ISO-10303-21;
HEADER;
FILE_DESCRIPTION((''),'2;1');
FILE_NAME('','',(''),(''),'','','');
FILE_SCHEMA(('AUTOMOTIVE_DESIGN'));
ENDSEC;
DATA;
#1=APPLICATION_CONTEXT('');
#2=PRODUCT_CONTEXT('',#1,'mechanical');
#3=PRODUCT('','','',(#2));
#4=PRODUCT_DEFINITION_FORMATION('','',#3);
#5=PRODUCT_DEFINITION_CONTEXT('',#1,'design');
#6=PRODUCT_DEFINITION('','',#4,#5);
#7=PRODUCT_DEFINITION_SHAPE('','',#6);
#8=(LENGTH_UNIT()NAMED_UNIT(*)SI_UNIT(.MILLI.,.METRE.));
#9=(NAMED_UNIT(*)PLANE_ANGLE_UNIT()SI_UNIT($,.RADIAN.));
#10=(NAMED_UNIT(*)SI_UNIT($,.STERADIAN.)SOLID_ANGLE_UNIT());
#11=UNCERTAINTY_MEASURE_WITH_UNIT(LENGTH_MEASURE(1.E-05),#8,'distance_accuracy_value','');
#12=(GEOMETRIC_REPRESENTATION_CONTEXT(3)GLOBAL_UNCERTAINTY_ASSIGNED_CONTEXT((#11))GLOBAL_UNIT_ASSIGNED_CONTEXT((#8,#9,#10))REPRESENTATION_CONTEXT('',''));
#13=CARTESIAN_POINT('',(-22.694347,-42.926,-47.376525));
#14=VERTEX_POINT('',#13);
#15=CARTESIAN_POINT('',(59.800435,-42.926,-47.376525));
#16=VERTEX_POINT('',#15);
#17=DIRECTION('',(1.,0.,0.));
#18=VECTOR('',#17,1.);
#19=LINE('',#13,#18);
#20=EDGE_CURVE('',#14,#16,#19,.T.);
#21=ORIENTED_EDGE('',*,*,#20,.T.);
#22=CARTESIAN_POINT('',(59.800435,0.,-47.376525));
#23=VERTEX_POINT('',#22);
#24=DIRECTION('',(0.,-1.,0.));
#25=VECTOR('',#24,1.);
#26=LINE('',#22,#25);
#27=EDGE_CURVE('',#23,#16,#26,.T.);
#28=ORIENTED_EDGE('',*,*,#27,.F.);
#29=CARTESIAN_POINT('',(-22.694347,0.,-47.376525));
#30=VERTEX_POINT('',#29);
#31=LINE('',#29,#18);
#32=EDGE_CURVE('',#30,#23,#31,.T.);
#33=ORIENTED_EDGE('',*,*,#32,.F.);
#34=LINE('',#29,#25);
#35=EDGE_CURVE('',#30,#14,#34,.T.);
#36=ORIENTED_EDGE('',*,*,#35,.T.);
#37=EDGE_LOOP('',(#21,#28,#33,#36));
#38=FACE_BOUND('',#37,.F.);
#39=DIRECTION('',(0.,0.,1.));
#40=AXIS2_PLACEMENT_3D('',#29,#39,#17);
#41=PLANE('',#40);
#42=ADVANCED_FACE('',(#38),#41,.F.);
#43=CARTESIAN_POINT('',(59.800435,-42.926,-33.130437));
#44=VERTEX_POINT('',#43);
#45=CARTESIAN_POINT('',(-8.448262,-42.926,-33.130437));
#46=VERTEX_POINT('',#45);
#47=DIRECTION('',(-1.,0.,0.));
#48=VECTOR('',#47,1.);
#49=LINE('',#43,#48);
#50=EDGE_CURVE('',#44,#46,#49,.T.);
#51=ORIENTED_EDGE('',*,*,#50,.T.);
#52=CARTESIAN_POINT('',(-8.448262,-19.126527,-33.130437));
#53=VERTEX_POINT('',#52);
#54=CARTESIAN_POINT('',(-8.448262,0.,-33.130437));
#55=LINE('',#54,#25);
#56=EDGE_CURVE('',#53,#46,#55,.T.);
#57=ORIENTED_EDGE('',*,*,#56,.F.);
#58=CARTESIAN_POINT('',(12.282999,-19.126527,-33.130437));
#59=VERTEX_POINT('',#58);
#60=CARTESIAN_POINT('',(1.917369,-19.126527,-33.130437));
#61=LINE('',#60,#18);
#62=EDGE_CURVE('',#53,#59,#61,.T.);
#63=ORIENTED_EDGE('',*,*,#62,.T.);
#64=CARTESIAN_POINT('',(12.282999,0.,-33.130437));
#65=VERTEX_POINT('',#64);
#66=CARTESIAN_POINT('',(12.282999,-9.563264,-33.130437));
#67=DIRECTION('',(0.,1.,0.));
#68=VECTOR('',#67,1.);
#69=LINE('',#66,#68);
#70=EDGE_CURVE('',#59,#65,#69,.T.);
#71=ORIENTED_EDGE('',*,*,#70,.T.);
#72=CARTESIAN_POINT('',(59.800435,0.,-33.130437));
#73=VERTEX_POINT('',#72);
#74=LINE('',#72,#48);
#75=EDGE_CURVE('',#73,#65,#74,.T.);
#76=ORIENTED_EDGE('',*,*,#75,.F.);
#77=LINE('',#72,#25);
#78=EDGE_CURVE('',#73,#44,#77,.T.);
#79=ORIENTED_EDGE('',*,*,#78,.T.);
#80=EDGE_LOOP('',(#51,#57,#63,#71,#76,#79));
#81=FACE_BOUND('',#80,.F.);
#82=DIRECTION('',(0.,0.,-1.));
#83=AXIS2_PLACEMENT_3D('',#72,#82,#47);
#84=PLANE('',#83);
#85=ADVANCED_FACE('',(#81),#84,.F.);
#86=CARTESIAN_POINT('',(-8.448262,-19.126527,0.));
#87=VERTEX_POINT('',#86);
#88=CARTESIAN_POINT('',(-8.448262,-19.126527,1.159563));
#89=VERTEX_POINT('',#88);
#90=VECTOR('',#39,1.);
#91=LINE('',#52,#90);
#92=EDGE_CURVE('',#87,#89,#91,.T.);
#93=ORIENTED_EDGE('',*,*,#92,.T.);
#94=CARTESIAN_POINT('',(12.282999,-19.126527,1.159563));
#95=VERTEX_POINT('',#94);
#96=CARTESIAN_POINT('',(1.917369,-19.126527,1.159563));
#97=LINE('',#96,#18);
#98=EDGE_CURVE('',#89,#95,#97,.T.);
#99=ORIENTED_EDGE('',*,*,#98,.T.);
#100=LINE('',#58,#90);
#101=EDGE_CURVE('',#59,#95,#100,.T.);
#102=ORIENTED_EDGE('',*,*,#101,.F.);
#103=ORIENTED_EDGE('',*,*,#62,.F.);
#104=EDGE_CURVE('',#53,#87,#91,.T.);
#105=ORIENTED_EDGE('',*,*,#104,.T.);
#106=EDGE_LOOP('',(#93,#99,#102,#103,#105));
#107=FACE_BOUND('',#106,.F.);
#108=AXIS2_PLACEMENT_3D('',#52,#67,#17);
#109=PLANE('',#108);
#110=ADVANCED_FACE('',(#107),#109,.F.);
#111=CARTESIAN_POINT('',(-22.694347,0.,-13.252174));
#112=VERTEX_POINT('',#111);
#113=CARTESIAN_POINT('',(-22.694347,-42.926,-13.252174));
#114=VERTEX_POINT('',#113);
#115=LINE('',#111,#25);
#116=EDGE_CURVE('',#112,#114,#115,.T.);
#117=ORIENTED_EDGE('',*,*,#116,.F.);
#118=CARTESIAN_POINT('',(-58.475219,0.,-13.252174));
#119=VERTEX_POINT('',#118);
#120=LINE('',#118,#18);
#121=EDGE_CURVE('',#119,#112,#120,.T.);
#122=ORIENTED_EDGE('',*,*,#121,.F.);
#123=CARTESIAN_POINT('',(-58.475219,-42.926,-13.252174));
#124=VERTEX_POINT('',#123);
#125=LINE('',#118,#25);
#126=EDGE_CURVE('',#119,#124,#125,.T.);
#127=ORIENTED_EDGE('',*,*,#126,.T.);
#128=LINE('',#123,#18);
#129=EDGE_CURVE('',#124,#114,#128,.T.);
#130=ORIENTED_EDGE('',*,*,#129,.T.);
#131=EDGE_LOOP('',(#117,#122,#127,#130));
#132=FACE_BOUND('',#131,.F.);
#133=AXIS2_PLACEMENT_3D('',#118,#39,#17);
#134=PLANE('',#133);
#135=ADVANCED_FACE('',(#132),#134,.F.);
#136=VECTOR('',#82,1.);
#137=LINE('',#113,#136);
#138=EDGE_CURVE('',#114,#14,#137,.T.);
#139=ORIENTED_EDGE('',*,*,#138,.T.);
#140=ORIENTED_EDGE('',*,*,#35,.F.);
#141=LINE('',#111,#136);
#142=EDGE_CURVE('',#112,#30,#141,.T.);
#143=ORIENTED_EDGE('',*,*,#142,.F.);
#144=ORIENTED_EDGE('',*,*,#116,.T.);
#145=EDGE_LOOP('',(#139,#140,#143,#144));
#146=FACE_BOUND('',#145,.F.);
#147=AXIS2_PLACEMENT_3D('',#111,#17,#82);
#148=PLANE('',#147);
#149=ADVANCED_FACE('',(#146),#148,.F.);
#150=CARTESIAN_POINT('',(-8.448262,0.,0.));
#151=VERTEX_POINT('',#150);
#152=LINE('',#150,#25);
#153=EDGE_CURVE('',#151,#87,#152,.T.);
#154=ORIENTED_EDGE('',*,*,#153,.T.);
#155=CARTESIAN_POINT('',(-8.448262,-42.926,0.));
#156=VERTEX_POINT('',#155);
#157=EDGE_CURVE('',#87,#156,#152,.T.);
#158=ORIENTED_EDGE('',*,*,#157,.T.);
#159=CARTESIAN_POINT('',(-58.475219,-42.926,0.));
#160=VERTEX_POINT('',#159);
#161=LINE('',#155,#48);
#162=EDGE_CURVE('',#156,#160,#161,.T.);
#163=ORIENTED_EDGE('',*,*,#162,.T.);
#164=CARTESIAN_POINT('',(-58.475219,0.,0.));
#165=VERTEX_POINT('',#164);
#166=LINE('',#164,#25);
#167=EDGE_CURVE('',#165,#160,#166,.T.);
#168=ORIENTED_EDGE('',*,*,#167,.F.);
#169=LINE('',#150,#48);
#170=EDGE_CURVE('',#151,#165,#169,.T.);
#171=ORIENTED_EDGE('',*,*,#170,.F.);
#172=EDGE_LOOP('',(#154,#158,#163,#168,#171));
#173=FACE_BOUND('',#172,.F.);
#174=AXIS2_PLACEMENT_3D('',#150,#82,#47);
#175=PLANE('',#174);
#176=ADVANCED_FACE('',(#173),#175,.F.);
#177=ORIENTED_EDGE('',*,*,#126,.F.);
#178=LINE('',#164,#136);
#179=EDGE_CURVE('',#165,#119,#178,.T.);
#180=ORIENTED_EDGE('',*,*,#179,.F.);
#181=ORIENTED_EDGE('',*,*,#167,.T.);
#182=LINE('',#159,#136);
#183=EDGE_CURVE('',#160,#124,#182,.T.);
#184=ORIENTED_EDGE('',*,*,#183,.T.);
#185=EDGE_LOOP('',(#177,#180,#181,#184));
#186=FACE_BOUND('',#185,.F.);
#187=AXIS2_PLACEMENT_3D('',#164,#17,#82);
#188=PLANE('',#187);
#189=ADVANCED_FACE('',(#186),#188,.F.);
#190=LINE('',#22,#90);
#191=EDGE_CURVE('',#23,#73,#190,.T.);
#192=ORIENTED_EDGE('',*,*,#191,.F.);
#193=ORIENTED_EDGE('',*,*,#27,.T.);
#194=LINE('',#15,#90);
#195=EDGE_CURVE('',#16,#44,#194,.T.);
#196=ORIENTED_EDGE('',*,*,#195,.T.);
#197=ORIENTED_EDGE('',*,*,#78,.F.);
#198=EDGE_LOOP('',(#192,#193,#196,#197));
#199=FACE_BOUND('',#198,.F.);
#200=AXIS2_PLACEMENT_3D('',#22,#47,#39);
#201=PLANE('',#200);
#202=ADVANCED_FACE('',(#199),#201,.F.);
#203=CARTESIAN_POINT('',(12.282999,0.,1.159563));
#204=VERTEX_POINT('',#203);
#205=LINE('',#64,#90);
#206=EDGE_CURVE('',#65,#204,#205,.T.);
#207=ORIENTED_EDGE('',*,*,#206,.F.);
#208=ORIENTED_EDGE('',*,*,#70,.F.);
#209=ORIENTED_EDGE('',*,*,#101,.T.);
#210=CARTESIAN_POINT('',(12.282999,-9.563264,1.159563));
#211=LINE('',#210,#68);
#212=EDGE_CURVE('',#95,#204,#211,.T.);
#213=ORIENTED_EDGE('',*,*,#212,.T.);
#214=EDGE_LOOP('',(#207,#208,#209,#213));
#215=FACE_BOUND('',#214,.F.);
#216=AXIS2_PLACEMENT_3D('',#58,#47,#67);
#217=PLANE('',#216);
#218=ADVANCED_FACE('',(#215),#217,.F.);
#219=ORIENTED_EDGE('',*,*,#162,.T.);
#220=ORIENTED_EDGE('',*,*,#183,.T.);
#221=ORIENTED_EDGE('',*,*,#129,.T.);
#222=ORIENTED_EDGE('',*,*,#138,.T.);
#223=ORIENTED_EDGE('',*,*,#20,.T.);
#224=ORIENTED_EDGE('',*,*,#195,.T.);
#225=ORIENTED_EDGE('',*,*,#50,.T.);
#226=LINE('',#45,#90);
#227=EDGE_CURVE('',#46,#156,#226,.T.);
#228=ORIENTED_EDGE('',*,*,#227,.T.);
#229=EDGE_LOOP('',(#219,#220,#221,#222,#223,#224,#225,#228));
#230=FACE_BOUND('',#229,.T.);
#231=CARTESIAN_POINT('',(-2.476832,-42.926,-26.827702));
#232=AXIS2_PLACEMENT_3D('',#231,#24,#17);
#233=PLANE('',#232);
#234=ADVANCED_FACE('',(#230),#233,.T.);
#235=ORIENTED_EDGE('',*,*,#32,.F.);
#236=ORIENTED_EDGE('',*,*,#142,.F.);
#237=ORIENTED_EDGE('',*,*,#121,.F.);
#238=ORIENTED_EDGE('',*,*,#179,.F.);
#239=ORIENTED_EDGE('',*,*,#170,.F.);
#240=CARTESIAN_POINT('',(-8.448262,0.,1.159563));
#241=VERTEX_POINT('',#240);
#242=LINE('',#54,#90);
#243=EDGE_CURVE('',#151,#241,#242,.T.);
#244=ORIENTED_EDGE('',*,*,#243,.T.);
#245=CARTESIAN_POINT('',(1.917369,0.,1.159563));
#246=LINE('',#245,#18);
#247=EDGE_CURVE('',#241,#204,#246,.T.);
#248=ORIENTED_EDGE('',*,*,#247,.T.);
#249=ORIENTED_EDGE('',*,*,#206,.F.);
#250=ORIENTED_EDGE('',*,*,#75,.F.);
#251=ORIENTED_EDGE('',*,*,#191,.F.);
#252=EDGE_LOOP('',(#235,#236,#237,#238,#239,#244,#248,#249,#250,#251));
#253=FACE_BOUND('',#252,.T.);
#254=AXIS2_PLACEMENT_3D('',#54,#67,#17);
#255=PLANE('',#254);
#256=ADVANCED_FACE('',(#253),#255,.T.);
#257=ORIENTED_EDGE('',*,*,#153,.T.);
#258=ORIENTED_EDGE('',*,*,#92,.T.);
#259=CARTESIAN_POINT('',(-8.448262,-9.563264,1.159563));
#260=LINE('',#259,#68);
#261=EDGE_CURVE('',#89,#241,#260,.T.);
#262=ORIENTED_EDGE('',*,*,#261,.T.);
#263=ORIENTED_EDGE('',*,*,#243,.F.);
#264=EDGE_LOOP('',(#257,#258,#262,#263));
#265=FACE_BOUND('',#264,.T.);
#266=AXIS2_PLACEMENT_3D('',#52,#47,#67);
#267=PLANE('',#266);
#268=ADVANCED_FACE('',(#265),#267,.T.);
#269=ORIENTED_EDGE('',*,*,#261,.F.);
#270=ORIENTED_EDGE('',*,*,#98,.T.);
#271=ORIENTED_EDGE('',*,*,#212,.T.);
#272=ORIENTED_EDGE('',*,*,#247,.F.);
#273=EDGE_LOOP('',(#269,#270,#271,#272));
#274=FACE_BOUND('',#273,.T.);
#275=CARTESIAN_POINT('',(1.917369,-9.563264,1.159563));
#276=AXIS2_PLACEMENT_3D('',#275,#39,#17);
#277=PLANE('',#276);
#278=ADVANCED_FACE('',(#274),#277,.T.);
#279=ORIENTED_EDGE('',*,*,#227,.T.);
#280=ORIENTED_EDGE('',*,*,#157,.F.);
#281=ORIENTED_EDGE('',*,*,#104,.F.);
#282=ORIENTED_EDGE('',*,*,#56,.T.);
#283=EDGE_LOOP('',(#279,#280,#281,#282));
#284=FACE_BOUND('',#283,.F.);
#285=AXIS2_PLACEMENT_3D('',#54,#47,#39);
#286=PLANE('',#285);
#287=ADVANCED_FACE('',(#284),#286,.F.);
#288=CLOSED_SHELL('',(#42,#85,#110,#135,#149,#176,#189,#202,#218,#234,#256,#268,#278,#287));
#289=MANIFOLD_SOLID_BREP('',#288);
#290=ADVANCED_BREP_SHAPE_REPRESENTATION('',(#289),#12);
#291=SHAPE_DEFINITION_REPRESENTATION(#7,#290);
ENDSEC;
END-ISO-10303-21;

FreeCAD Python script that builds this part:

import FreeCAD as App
import Part
import Sketcher

V = App.Vector

doc = App.newDocument("Part")
params = doc.addObject("Spreadsheet::Sheet", "Params")
for row, (alias, value) in enumerate([
    ("pad1_length", "1.69 in"),
    ("pad2_length", "1.35 in"),
], start=1):
    params.set(f"A{row}", alias)
    params.set(f"B{row}", "=" + value)
    params.setAlias(f"B{row}", alias)

body = doc.addObject("PartDesign::Body", "Body")

sketch1 = doc.addObject("Sketcher::SketchObject", "Sketch")
body.addObject(sketch1)
sketch1.AttachmentSupport = (doc.XZ_Plane, [""])
sketch1.MapMode = "FlatFace"
sketch1.addGeometry([
    Part.LineSegment(V(-22.694347, -47.376525, 0), V(59.800435, -47.376525, 0)),
    Part.LineSegment(V(59.800435, -47.376525, 0), V(59.800435, -33.130437, 0)),
    Part.LineSegment(V(59.800435, -33.130437, 0), V(-8.448262, -33.130437, 0)),
    Part.LineSegment(V(-8.448262, -33.130437, 0), V(-8.448262, 0, 0)),
    Part.LineSegment(V(-8.448262, 0, 0), V(-58.475219, 0, 0)),
    Part.LineSegment(V(-58.475219, 0, 0), V(-58.475219, -13.252174, 0)),
    Part.LineSegment(V(-58.475219, -13.252174, 0), V(-22.694347, -13.252174, 0)),
    Part.LineSegment(V(-22.694347, -13.252174, 0), V(-22.694347, -47.376525, 0)),
], False)
sketch1.addConstraint([
    Sketcher.Constraint("Coincident", 0, 2, 1, 1),
    Sketcher.Constraint("Coincident", 1, 2, 2, 1),
    Sketcher.Constraint("Coincident", 2, 2, 3, 1),
    Sketcher.Constraint("Coincident", 3, 2, 4, 1),
    Sketcher.Constraint("Coincident", 4, 2, 5, 1),
    Sketcher.Constraint("Coincident", 5, 2, 6, 1),
    Sketcher.Constraint("Coincident", 6, 2, 7, 1),
    Sketcher.Constraint("Coincident", 7, 2, 0, 1),
    Sketcher.Constraint("Horizontal", 0),
    Sketcher.Constraint("Vertical", 1),
    Sketcher.Constraint("Horizontal", 2),
    Sketcher.Constraint("Vertical", 3),
    Sketcher.Constraint("Horizontal", 4),
    Sketcher.Constraint("Vertical", 5),
    Sketcher.Constraint("Horizontal", 6),
    Sketcher.Constraint("Vertical", 7),
    Sketcher.Constraint("PointOnObject", 3, 2, -1),
    Sketcher.Constraint("DistanceX", 6, 1, 6, 2, 35.780871),
    Sketcher.Constraint("DistanceY", 7, 2, 7, 1, 34.12435),
    Sketcher.Constraint("DistanceX", 0, 1, 0, 2, 82.494782),
    Sketcher.Constraint("DistanceX", 2, 2, 2, 1, 68.248697),
    Sketcher.Constraint("DistanceY", 1, 1, 1, 2, 14.246088),
    Sketcher.Constraint("DistanceY", 3, 1, 3, 2, 33.130437),
    Sketcher.Constraint("DistanceX", 2, 2, -1, 1, 8.448262),
])
pad1 = doc.addObject("PartDesign::Pad", "Pad")
body.addObject(pad1)
pad1.Profile = sketch1
pad1.setExpression("Length", "Params.pad1_length")

sketch2 = doc.addObject("Sketcher::SketchObject", "Sketch001")
body.addObject(sketch2)
sketch2.AttachmentSupport = (doc.XY_Plane, [""])
sketch2.MapMode = "FlatFace"
sketch2.AttachmentOffset = App.Placement(V(0, 0, -33.130437), App.Rotation())
sketch2.addGeometry([
    Part.LineSegment(V(-8.448262, 0, 0), V(-8.448262, -19.126527, 0)),
    Part.LineSegment(V(-8.448262, -19.126527, 0), V(12.282999, -19.126527, 0)),
    Part.LineSegment(V(12.282999, -19.126527, 0), V(12.282999, 0, 0)),
    Part.LineSegment(V(12.282999, 0, 0), V(-8.448262, 0, 0)),
], False)
sketch2.addConstraint([
    Sketcher.Constraint("Coincident", 0, 2, 1, 1),
    Sketcher.Constraint("Coincident", 1, 2, 2, 1),
    Sketcher.Constraint("Coincident", 2, 2, 3, 1),
    Sketcher.Constraint("Coincident", 3, 2, 0, 1),
    Sketcher.Constraint("Vertical", 0),
    Sketcher.Constraint("Horizontal", 1),
    Sketcher.Constraint("Vertical", 2),
    Sketcher.Constraint("Horizontal", 3),
    Sketcher.Constraint("PointOnObject", 2, 2, -1),
    Sketcher.Constraint("DistanceX", 1, 1, 1, 2, 20.731261),
    Sketcher.Constraint("DistanceX", -1, 1, 1, 2, 12.282999),
    Sketcher.Constraint("DistanceY", 0, 2, 0, 1, 19.126527),
])
pad2 = doc.addObject("PartDesign::Pad", "Pad001")
body.addObject(pad2)
pad2.Profile = sketch2
pad2.setExpression("Length", "Params.pad2_length")

doc.recompute()
